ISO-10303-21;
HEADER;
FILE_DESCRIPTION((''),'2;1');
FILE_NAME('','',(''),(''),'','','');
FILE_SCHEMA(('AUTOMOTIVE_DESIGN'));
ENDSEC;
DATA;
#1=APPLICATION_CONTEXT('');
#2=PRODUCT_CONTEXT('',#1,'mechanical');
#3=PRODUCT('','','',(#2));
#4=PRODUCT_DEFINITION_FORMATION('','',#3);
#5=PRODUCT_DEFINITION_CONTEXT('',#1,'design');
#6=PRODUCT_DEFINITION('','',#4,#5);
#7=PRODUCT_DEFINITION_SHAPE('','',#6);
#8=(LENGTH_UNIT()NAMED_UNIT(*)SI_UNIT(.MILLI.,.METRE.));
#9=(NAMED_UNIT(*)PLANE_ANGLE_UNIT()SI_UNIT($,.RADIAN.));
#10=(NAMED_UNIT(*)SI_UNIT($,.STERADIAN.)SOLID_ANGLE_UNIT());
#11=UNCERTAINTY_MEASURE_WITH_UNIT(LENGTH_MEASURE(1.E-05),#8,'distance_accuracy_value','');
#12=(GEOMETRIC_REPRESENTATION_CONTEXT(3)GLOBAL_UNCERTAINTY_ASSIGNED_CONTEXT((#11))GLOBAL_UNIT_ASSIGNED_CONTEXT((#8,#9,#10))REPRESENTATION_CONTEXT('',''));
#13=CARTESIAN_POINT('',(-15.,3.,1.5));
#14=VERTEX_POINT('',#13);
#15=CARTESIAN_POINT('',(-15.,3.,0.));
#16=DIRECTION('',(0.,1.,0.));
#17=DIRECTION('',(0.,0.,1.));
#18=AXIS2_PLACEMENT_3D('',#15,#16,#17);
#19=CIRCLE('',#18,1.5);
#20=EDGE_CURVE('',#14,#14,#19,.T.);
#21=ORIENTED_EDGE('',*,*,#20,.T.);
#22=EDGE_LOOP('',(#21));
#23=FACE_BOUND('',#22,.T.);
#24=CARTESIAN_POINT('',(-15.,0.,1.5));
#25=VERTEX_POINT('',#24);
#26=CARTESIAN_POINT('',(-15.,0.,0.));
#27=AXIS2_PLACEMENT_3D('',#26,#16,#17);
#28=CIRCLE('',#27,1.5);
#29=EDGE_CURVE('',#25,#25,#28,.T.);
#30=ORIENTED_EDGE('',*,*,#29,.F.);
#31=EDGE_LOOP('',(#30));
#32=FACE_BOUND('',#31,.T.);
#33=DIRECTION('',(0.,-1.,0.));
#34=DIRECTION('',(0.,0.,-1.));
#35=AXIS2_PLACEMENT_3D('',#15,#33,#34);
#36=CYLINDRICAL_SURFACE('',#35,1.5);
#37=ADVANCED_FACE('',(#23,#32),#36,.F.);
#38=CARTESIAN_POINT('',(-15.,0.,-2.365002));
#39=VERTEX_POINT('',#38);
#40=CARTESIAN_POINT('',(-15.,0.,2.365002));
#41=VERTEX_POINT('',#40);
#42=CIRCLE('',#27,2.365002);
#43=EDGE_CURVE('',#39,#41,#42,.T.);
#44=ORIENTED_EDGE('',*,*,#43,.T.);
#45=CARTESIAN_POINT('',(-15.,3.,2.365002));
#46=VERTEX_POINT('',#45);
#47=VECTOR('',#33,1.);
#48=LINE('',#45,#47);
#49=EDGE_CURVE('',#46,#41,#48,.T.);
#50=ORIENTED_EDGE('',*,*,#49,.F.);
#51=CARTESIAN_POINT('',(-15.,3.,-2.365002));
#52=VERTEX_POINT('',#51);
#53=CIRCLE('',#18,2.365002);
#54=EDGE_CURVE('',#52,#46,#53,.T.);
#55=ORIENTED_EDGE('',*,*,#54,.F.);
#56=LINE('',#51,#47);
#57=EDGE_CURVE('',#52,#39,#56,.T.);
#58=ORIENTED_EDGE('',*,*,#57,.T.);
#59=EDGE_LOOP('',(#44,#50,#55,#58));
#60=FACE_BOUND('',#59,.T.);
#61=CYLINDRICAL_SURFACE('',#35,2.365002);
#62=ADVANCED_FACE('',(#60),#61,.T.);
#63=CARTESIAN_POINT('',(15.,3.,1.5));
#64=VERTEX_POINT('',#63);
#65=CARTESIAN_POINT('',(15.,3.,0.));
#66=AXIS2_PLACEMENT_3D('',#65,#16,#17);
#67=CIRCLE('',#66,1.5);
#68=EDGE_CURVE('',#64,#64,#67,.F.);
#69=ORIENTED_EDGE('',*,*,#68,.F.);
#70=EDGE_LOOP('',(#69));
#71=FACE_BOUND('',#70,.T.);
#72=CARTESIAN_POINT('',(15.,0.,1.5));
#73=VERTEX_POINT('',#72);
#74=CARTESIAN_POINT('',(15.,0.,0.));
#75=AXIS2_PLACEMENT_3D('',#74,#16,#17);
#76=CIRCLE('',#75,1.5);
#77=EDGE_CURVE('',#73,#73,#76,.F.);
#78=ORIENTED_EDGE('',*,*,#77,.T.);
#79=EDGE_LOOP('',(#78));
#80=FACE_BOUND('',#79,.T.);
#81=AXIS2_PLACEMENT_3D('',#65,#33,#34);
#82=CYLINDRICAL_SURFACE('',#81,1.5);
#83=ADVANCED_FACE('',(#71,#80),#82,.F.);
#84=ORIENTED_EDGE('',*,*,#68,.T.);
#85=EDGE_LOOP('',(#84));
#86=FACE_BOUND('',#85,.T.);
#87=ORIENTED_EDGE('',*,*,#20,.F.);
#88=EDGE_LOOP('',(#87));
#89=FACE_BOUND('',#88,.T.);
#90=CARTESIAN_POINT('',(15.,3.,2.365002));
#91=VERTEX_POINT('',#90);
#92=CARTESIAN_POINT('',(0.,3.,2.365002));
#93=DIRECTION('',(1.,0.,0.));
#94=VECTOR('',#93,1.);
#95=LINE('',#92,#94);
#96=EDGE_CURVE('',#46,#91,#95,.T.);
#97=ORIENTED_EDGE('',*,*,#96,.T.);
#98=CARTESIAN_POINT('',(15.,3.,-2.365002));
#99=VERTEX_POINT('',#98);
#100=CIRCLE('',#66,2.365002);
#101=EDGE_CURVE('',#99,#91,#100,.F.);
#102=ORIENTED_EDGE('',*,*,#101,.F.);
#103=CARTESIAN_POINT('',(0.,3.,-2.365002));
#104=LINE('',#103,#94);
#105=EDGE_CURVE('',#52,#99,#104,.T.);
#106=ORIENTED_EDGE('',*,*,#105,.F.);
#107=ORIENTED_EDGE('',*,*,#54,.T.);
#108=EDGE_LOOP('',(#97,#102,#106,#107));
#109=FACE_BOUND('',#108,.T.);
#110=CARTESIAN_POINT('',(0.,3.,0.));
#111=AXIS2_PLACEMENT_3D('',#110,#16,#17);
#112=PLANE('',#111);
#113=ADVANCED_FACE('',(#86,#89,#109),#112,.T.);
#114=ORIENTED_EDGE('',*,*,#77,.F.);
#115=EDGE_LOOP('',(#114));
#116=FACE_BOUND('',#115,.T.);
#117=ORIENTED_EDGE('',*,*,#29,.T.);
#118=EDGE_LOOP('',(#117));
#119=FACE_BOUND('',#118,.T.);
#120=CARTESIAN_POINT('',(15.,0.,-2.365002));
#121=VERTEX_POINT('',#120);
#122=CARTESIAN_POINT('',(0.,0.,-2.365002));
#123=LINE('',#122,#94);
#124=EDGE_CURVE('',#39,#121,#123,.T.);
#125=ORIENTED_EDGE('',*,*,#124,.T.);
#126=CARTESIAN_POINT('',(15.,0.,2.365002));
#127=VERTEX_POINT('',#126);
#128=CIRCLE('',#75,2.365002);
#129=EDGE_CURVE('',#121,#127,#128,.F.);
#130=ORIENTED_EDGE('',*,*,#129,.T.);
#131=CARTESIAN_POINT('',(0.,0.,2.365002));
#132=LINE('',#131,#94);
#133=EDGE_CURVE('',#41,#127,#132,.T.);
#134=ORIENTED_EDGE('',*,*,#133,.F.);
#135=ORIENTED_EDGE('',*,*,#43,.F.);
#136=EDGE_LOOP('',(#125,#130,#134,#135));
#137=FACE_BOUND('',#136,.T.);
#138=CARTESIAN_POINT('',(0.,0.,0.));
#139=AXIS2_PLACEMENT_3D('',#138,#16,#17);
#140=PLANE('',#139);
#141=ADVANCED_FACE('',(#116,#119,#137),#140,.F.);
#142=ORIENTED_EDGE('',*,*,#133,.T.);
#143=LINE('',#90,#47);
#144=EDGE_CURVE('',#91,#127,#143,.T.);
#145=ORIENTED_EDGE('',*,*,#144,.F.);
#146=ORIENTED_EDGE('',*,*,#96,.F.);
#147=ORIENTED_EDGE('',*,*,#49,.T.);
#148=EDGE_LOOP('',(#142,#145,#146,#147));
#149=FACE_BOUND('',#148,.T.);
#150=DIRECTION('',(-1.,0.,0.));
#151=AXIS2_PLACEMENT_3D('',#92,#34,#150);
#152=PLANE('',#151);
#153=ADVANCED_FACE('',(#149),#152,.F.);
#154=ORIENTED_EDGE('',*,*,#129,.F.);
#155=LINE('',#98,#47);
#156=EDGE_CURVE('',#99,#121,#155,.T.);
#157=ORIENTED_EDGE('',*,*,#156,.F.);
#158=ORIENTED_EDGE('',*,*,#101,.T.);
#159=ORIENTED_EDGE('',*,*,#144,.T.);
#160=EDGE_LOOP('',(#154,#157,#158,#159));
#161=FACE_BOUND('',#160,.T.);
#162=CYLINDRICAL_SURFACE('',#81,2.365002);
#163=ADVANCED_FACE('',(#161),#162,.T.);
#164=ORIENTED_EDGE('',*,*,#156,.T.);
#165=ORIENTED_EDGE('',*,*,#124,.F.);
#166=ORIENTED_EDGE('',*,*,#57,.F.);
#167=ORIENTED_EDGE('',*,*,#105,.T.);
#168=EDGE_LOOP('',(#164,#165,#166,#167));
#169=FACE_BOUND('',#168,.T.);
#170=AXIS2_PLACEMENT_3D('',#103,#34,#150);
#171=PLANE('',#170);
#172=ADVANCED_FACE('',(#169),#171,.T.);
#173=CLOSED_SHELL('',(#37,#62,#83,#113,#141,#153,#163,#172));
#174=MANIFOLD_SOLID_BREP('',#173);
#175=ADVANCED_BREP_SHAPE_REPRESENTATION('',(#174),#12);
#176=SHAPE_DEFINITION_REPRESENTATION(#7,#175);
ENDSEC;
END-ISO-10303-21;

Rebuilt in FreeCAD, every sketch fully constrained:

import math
import FreeCAD as App
import Part
import Sketcher
from FreeCAD import Vector
Q = App.Units.Quantity

doc = App.newDocument("Part")
body = doc.addObject("PartDesign::Body", "Body")

sketch1 = body.newObject("Sketcher::SketchObject", "Sketch")
sketch1.AttachmentSupport = (doc.getObject("XZ_Plane"), [""])
sketch1.MapMode = "FlatFace"
sketch1.addGeometry([
    Part.LineSegment(Vector(-15, 2.365002, 0), Vector(15, 2.365002, 0)),
    Part.ArcOfCircle(Part.Circle(Vector(15, 0, 0), Vector(0, 0, 1), 2.365002), math.radians(-90), math.radians(90)),
    Part.LineSegment(Vector(15, -2.365002, 0), Vector(-15, -2.365002, 0)),
    Part.ArcOfCircle(Part.Circle(Vector(-15, 0, 0), Vector(0, 0, 1), 2.365002), math.radians(90), math.radians(270)),
    Part.Circle(Vector(-15, 0, 0), Vector(0, 0, 1), 1.5),
    Part.Circle(Vector(15, 0, 0), Vector(0, 0, 1), 1.5),
], False)
sketch1.addConstraint([
    Sketcher.Constraint("Tangent", 0, 2, 1, 2),
    Sketcher.Constraint("Tangent", 1, 1, 2, 1),
    Sketcher.Constraint("Tangent", 2, 2, 3, 2),
    Sketcher.Constraint("Tangent", 3, 1, 0, 1),
    Sketcher.Constraint("Horizontal", 0),
    Sketcher.Constraint("Horizontal", 2),
    Sketcher.Constraint("Coincident", 4, 3, 3, 3),
    Sketcher.Constraint("Coincident", 5, 3, 1, 3),
    Sketcher.Constraint("Equal", 4, 5),
    Sketcher.Constraint("Symmetric", 1, 3, 3, 3, -1, 1),
    Sketcher.Constraint("Diameter", 4, Q("3 mm")),
    Sketcher.Constraint("DistanceX", 0, 1, 0, 2, Q("30 mm")),
    Sketcher.Constraint("Radius", 1, Q("2.365002 mm")),
])
pad1 = body.newObject("PartDesign::Pad", "Pad")
pad1.Profile = sketch1
pad1.Length = 3
pad1.Reversed = True

doc.recompute()
